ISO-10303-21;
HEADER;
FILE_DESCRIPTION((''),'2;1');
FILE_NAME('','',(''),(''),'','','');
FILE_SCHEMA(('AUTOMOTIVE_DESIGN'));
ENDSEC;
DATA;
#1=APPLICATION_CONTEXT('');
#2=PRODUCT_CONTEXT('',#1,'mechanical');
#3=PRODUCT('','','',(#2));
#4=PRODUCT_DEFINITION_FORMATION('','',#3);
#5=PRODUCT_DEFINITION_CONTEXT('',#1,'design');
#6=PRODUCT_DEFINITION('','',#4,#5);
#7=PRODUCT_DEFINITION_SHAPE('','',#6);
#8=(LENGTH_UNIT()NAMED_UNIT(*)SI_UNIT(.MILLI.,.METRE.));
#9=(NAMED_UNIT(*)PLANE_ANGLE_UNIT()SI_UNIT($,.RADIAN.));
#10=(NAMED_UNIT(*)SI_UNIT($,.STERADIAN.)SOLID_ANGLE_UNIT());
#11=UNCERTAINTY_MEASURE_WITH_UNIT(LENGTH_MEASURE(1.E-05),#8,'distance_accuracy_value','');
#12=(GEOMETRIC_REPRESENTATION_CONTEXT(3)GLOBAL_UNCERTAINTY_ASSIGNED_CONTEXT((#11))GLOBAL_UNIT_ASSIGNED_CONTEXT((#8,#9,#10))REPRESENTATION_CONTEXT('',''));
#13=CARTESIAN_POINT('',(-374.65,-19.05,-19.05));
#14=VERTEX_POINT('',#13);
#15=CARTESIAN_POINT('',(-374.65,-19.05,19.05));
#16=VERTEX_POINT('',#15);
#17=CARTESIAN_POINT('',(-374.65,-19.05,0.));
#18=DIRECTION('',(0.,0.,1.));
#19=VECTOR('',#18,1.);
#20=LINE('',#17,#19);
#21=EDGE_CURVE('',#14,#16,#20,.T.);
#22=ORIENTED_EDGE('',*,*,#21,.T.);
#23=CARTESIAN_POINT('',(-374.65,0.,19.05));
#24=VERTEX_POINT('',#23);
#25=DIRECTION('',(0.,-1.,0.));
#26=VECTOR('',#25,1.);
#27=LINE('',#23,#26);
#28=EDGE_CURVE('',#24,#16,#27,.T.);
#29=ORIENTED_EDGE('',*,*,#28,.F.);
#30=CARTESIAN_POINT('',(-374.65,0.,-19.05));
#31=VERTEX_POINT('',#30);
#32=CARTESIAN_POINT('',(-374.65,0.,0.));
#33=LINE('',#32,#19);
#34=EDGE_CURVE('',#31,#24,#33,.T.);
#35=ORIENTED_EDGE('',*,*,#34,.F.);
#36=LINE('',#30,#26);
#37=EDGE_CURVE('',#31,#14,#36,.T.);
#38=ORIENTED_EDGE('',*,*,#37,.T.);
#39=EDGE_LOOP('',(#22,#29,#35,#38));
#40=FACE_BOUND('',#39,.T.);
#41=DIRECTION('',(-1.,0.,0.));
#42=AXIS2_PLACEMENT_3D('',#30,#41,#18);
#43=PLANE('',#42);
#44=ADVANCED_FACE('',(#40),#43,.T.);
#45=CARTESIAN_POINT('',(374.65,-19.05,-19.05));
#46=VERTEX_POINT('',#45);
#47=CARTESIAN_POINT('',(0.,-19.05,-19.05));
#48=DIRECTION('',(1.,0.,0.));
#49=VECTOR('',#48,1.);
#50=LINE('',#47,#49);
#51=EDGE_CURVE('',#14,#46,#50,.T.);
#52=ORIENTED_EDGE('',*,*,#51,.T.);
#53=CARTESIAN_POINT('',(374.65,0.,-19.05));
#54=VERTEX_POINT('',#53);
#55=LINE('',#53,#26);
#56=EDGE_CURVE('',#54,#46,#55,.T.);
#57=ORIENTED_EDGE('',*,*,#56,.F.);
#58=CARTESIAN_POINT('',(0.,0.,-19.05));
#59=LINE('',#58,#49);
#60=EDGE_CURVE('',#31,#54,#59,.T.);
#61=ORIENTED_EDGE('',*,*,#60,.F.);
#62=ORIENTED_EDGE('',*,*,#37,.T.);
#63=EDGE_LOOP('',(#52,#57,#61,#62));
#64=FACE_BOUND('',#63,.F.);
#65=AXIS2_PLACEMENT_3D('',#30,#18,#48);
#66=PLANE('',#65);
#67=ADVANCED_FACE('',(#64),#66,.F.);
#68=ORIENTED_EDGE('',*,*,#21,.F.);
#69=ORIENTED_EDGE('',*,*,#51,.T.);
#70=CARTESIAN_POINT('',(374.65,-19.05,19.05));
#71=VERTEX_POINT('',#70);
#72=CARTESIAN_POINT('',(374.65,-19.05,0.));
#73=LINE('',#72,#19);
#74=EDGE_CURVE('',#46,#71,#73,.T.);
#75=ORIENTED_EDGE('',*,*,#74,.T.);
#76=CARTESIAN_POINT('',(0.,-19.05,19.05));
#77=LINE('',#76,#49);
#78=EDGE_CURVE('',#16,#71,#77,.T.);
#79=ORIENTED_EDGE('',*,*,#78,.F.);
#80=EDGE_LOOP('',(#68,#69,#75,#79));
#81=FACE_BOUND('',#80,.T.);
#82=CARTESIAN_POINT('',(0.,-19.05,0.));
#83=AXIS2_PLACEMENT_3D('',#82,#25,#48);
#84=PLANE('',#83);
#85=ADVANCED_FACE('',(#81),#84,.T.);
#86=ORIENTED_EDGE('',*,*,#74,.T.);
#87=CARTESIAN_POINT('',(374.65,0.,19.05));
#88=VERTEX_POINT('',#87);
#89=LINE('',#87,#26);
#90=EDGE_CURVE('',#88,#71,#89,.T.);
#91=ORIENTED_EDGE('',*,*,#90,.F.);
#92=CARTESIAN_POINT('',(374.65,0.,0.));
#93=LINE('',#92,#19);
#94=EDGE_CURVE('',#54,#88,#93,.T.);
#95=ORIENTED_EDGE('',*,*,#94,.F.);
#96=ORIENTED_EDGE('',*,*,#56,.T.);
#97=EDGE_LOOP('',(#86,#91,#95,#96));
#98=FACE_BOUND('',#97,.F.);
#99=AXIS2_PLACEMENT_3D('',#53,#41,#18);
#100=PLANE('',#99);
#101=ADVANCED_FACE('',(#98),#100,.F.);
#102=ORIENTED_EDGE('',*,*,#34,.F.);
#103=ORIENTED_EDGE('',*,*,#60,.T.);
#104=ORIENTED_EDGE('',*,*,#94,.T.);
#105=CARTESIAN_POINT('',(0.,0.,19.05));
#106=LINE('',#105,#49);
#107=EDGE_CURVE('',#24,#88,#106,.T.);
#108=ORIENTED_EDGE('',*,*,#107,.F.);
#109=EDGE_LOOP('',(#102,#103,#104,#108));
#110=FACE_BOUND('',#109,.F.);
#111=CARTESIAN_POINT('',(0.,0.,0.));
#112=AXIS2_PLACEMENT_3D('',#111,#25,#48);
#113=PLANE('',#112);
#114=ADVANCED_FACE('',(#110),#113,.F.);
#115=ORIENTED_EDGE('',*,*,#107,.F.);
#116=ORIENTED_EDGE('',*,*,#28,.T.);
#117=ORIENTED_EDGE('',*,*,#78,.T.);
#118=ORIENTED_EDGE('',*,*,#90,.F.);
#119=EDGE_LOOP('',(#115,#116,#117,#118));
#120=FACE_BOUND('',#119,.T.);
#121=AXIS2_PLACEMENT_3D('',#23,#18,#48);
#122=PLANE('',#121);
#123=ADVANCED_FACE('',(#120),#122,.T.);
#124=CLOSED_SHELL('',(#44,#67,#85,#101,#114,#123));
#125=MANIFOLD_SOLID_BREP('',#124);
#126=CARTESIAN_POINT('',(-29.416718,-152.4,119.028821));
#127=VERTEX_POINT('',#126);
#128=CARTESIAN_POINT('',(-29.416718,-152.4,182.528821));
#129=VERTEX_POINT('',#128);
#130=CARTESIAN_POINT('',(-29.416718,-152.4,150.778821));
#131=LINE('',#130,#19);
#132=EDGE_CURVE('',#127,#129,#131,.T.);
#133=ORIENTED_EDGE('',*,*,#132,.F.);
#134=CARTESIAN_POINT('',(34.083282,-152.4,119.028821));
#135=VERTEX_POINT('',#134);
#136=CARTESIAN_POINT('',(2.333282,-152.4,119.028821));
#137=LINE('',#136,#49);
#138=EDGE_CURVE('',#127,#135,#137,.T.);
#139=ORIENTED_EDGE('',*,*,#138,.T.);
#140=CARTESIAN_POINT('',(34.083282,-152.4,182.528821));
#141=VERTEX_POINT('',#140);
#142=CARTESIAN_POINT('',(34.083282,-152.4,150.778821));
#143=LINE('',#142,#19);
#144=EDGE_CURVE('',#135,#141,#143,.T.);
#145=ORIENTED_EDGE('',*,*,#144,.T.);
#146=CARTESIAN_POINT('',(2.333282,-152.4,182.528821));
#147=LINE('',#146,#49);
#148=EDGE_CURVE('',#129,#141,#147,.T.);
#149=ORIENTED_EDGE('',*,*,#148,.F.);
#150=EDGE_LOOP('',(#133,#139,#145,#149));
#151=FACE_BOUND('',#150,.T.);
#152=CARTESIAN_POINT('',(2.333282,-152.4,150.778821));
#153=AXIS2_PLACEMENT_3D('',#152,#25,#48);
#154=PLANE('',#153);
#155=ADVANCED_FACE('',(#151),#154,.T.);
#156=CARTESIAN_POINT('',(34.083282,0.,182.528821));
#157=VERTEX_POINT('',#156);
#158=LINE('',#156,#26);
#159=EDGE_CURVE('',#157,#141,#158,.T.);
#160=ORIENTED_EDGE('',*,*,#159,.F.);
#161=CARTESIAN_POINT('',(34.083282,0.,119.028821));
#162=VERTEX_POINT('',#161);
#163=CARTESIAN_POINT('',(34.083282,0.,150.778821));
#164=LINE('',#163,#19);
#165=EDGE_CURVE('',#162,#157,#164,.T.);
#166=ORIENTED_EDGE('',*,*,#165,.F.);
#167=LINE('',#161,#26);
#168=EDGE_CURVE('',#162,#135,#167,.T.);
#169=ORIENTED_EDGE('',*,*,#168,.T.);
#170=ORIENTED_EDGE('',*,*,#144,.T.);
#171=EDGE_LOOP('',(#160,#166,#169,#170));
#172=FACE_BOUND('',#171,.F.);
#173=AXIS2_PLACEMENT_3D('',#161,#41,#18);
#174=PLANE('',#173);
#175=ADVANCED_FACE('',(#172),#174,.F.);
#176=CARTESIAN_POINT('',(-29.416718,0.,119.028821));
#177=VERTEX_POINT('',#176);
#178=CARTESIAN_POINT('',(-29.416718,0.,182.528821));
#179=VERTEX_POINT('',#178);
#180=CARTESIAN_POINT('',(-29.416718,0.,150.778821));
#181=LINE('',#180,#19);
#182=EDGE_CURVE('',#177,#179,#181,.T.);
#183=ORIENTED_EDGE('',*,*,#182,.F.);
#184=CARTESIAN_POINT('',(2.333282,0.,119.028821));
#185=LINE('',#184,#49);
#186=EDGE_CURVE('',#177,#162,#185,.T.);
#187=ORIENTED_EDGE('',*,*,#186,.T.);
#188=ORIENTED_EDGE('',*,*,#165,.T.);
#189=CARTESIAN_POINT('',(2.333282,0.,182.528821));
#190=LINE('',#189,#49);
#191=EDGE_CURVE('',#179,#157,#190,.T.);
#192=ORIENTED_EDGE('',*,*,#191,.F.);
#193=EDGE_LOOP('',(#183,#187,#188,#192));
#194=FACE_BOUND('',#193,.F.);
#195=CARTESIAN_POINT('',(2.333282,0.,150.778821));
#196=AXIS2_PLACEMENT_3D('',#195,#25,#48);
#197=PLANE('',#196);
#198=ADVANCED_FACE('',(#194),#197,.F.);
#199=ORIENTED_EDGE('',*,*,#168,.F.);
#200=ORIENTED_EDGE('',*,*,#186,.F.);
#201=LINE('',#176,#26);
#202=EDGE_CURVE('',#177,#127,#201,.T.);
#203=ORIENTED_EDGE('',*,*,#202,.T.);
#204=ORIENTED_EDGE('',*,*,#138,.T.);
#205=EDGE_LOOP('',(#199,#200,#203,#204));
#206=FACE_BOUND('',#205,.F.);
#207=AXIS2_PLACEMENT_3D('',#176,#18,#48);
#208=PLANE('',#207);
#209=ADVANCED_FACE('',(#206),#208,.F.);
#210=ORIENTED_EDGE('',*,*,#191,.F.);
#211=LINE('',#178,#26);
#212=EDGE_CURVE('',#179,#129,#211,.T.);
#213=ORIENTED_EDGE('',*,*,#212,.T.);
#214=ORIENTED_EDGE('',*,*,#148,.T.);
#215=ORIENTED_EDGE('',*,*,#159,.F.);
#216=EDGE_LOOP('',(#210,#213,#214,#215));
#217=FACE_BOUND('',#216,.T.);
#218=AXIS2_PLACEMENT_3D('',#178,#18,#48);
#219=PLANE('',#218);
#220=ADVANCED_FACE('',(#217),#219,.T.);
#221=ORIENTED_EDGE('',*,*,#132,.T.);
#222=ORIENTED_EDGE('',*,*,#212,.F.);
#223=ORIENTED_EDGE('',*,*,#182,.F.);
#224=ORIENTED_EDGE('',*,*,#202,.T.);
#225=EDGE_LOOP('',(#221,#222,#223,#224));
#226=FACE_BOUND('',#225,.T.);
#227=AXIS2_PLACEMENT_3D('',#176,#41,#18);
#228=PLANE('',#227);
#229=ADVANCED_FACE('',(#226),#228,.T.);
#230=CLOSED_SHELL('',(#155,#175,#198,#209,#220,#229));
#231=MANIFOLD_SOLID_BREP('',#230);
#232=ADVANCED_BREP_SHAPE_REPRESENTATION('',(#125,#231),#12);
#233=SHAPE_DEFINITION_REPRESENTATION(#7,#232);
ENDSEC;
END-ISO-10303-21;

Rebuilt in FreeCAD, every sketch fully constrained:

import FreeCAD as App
import Part
import Sketcher
Q = App.Units.Quantity

doc = App.newDocument("Part")
params = doc.addObject("Spreadsheet::Sheet", "Params")
for row, (alias, value) in enumerate([
    ("sketch1_width", "29.5 in"),
    ("sketch1_height", "1.5 in"),
    ("pad1_length", "0.75 in"),
    ("sketch2_width", "2.5 in"),
    ("pad2_length", "6 in"),
], start=1):
    params.set(f"A{row}", alias)
    params.set(f"B{row}", "=" + value)
    params.setAlias(f"B{row}", alias)

body = doc.addObject("PartDesign::Body", "Body")

# Sketch on XZ plane
sketch1 = doc.addObject("Sketcher::SketchObject", "Sketch")
body.addObject(sketch1)
sketch1.AttachmentSupport = (doc.XZ_Plane, [""])
sketch1.MapMode = "FlatFace"
sketch1.addGeometry(Part.LineSegment(App.Vector(-375, 19, 0), App.Vector(-375, -19, 0)), False)
sketch1.addGeometry(Part.LineSegment(App.Vector(-375, -19, 0), App.Vector(375, -19, 0)), False)
sketch1.addGeometry(Part.LineSegment(App.Vector(375, -19, 0), App.Vector(375, 19, 0)), False)
sketch1.addGeometry(Part.LineSegment(App.Vector(375, 19, 0), App.Vector(-375, 19, 0)), False)
sketch1.addConstraint(Sketcher.Constraint("Coincident", 0, 2, 1, 1))
sketch1.addConstraint(Sketcher.Constraint("Coincident", 1, 2, 2, 1))
sketch1.addConstraint(Sketcher.Constraint("Coincident", 2, 2, 3, 1))
sketch1.addConstraint(Sketcher.Constraint("Coincident", 3, 2, 0, 1))
sketch1.addConstraint(Sketcher.Constraint("Vertical", 0))
sketch1.addConstraint(Sketcher.Constraint("Horizontal", 1))
sketch1.addConstraint(Sketcher.Constraint("Vertical", 2))
sketch1.addConstraint(Sketcher.Constraint("Horizontal", 3))
sketch1.addConstraint(Sketcher.Constraint("Symmetric", 0, 2, 2, 2, -1, 1))
sketch1.addConstraint(Sketcher.Constraint("DistanceX", 1, 1, 1, 2, Q("29.5 in")))
sketch1.addConstraint(Sketcher.Constraint("DistanceY", 0, 2, 0, 1, Q("1.5 in")))
sketch1.setExpression("Constraints[9]", "Params.sketch1_width")
sketch1.setExpression("Constraints[10]", "Params.sketch1_height")
pad1 = doc.addObject("PartDesign::Pad", "Pad")
body.addObject(pad1)
pad1.Profile = sketch1
pad1.setExpression("Length", "Params.pad1_length")
body2 = doc.addObject("PartDesign::Body", "Body001")

# Sketch on XZ plane
sketch2 = doc.addObject("Sketcher::SketchObject", "Sketch001")
body2.addObject(sketch2)
sketch2.AttachmentSupport = (doc.getObject("XZ_Plane001"), [""])
sketch2.MapMode = "FlatFace"
sketch2.addGeometry(Part.LineSegment(App.Vector(-29, 183, 0), App.Vector(-29, 119, 0)), False)
sketch2.addGeometry(Part.LineSegment(App.Vector(-29, 119, 0), App.Vector(34, 119, 0)), False)
sketch2.addGeometry(Part.LineSegment(App.Vector(34, 119, 0), App.Vector(34, 183, 0)), False)
sketch2.addGeometry(Part.LineSegment(App.Vector(34, 183, 0), App.Vector(-29, 183, 0)), False)
sketch2.addConstraint(Sketcher.Constraint("Coincident", 0, 2, 1, 1))
sketch2.addConstraint(Sketcher.Constraint("Coincident", 1, 2, 2, 1))
sketch2.addConstraint(Sketcher.Constraint("Coincident", 2, 2, 3, 1))
sketch2.addConstraint(Sketcher.Constraint("Coincident", 3, 2, 0, 1))
sketch2.addConstraint(Sketcher.Constraint("Vertical", 0))
sketch2.addConstraint(Sketcher.Constraint("Horizontal", 1))
sketch2.addConstraint(Sketcher.Constraint("Vertical", 2))
sketch2.addConstraint(Sketcher.Constraint("Horizontal", 3))
sketch2.addConstraint(Sketcher.Constraint("Equal", 3, 0))
sketch2.addConstraint(Sketcher.Constraint("DistanceX", 1, 1, 1, 2, Q("2.5 in")))
sketch2.addConstraint(Sketcher.Constraint("DistanceY", -1, 1, 0, 2, 119.028821))
sketch2.addConstraint(Sketcher.Constraint("DistanceX", -1, 1, 1, 2, 34.083282))
sketch2.setExpression("Constraints[9]", "Params.sketch2_width")
pad2 = doc.addObject("PartDesign::Pad", "Pad001")
body2.addObject(pad2)
pad2.Profile = sketch2
pad2.setExpression("Length", "Params.pad2_length")

doc.recompute()
